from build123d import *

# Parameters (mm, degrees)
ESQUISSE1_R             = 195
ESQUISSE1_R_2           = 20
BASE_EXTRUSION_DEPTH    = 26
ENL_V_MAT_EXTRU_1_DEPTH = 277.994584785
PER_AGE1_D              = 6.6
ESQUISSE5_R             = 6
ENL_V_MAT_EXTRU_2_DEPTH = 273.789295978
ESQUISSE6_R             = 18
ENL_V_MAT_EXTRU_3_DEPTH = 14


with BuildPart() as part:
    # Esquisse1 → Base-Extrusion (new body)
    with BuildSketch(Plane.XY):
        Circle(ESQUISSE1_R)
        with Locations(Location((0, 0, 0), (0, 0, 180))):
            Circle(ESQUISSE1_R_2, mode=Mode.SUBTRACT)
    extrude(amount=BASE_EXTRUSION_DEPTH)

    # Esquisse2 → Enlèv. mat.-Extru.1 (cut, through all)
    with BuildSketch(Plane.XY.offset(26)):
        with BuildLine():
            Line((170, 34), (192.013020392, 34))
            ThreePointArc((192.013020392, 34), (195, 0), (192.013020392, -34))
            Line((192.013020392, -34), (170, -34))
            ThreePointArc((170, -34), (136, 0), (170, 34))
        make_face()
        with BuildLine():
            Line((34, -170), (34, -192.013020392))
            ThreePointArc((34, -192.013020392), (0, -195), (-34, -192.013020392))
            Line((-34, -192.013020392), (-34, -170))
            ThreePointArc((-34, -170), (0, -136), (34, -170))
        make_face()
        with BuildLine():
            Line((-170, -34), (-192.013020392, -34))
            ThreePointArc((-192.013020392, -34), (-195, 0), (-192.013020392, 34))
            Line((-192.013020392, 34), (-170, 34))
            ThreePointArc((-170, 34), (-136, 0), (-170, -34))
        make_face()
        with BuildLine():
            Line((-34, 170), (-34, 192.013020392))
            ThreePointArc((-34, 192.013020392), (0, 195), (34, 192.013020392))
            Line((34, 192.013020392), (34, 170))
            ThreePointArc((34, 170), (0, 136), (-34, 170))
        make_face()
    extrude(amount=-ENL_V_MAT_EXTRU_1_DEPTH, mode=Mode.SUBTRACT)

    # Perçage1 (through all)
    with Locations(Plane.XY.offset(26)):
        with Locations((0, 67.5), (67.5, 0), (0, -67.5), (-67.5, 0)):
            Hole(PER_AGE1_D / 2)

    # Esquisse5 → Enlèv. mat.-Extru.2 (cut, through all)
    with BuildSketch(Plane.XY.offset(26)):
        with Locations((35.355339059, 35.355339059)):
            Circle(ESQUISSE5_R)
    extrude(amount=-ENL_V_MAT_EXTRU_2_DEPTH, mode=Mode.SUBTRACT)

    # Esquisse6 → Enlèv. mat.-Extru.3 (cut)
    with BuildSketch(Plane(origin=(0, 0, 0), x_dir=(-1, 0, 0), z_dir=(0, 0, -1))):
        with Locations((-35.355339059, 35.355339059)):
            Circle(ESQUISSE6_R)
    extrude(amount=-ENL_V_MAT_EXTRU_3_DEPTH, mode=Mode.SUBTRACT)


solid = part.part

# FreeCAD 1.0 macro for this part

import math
import FreeCAD as App
import Part
import Sketcher

V = App.Vector
Q = App.Units.Quantity

doc = App.newDocument("Part")
body = doc.addObject("PartDesign::Body", "Body")

sketch1 = doc.addObject("Sketcher::SketchObject", "Sketch")
body.addObject(sketch1)
sketch1.AttachmentSupport = (doc.XY_Plane, [""])
sketch1.MapMode = "FlatFace"
sketch1.addGeometry([
    Part.Circle(V(0, 0, 0), V(0, 0, 1), 195),
    Part.Circle(V(0, 0, 0), V(0, 0, 1), 20),
], False)
sketch1.addConstraint([
    Sketcher.Constraint("Coincident", 0, 3, -1, 1),
    Sketcher.Constraint("Coincident", 1, 3, -1, 1),
    Sketcher.Constraint("Diameter", 0, Q("390 mm")),
    Sketcher.Constraint("Diameter", 1, Q("40 mm")),
])
pad1 = doc.addObject("PartDesign::Pad", "Pad")
body.addObject(pad1)
pad1.Profile = sketch1
pad1.Length = 26

sketch2 = doc.addObject("Sketcher::SketchObject", "Sketch001")
body.addObject(sketch2)
sketch2.AttachmentSupport = (doc.XY_Plane, [""])
sketch2.MapMode = "FlatFace"
sketch2.AttachmentOffset = App.Placement(V(0, 0, 26), App.Rotation())
sketch2.addGeometry([
    Part.LineSegment(V(192, 34, 0), V(170, 34, 0)),
    Part.ArcOfCircle(Part.Circle(V(170, 0, 0), V(0, 0, 1), 34), math.radians(90), math.radians(270)),
    Part.LineSegment(V(170, -34, 0), V(192, -34, 0)),
    Part.ArcOfCircle(Part.Circle(V(0, 0, 0), V(0, 0, 1), 195), math.radians(-10), math.radians(10)),
    Part.LineSegment(V(34, -192, 0), V(34, -170, 0)),
    Part.ArcOfCircle(Part.Circle(V(0, -170, 0), V(0, 0, 1), 34), math.radians(0), math.radians(180)),
    Part.LineSegment(V(-34, -170, 0), V(-34, -192, 0)),
    Part.ArcOfCircle(Part.Circle(V(0, 0, 0), V(0, 0, 1), 195), math.radians(-100), math.radians(-80)),
    Part.LineSegment(V(-192, -34, 0), V(-170, -34, 0)),
    Part.ArcOfCircle(Part.Circle(V(-170, 0, 0), V(0, 0, 1), 34), math.radians(-90), math.radians(90)),
    Part.LineSegment(V(-170, 34, 0), V(-192, 34, 0)),
    Part.ArcOfCircle(Part.Circle(V(0, 0, 0), V(0, 0, 1), 195), math.radians(170), math.radians(190)),
    Part.LineSegment(V(-34, 192, 0), V(-34, 170, 0)),
    Part.ArcOfCircle(Part.Circle(V(0, 170, 0), V(0, 0, 1), 34), math.radians(180), math.radians(360)),
    Part.LineSegment(V(34, 170, 0), V(34, 192, 0)),
    Part.ArcOfCircle(Part.Circle(V(0, 0, 0), V(0, 0, 1), 195), math.radians(80), math.radians(100)),
], False)
sketch2.addConstraint([
    Sketcher.Constraint("Tangent", 0, 2, 1, 1),
    Sketcher.Constraint("Tangent", 1, 2, 2, 1),
    Sketcher.Constraint("Coincident", 2, 2, 3, 1),
    Sketcher.Constraint("Coincident", 3, 2, 0, 1),
    Sketcher.Constraint("Tangent", 4, 2, 5, 1),
    Sketcher.Constraint("Tangent", 5, 2, 6, 1),
    Sketcher.Constraint("Coincident", 6, 2, 7, 1),
    Sketcher.Constraint("Coincident", 7, 2, 4, 1),
    Sketcher.Constraint("Tangent", 8, 2, 9, 1),
    Sketcher.Constraint("Tangent", 9, 2, 10, 1),
    Sketcher.Constraint("Coincident", 10, 2, 11, 1),
    Sketcher.Constraint("Coincident", 11, 2, 8, 1),
    Sketcher.Constraint("Tangent", 12, 2, 13, 1),
    Sketcher.Constraint("Tangent", 13, 2, 14, 1),
    Sketcher.Constraint("Coincident", 14, 2, 15, 1),
    Sketcher.Constraint("Coincident", 15, 2, 12, 1),
    Sketcher.Constraint("Horizontal", 0),
    Sketcher.Constraint("Horizontal", 2),
    Sketcher.Constraint("Vertical", 4),
    Sketcher.Constraint("Vertical", 6),
    Sketcher.Constraint("Horizontal", 8),
    Sketcher.Constraint("Horizontal", 10),
    Sketcher.Constraint("Vertical", 12),
    Sketcher.Constraint("Vertical", 14),
    Sketcher.Constraint("Coincident", 3, 3, -1, 1),
    Sketcher.Constraint("Coincident", 7, 3, -1, 1),
    Sketcher.Constraint("Coincident", 11, 3, -1, 1),
    Sketcher.Constraint("Coincident", 15, 3, -1, 1),
    Sketcher.Constraint("Equal", 1, 5),
    Sketcher.Constraint("Equal", 3, 7),
    Sketcher.Constraint("Equal", 5, 9),
    Sketcher.Constraint("Equal", 7, 11),
    Sketcher.Constraint("Equal", 9, 13),
    Sketcher.Constraint("Equal", 11, 15),
    Sketcher.Constraint("Symmetric", 1, 3, 9, 3, -1, 1),
    Sketcher.Constraint("Symmetric", 5, 3, 13, 3, -1, 1),
    Sketcher.Constraint("PointOnObject", 1, 3, -1),
    Sketcher.Constraint("PointOnObject", 5, 3, -2),
    Sketcher.Constraint("Equal", 10, 4),
    Sketcher.Constraint("Radius", 1, Q("34 mm")),
    Sketcher.Constraint("Radius", 3, Q("195 mm")),
    Sketcher.Constraint("DistanceX", -1, 1, 1, 3, Q("170 mm")),
])
pocket1 = doc.addObject("PartDesign::Pocket", "Pocket")
body.addObject(pocket1)
pocket1.Profile = sketch2
pocket1.Type = "ThroughAll"

sketch3 = doc.addObject("Sketcher::SketchObject", "Sketch002")
body.addObject(sketch3)
sketch3.AttachmentSupport = (doc.XY_Plane, [""])
sketch3.MapMode = "FlatFace"
sketch3.AttachmentOffset = App.Placement(V(0, 0, 26), App.Rotation())
sketch3.addGeometry([
    Part.Circle(V(0, 67.5, 0), V(0, 0, 1), 3.3),
    Part.Circle(V(67.5, 0, 0), V(0, 0, 1), 3.3),
    Part.Circle(V(0, -67.5, 0), V(0, 0, 1), 3.3),
    Part.Circle(V(-67.5, 0, 0), V(0, 0, 1), 3.3),
], False)
sketch3.addConstraint([
    Sketcher.Constraint("Equal", 0, 1),
    Sketcher.Constraint("Equal", 1, 2),
    Sketcher.Constraint("Equal", 2, 3),
    Sketcher.Constraint("Symmetric", 0, 3, 2, 3, -1, 1),
    Sketcher.Constraint("Symmetric", 1, 3, 3, 3, -1, 1),
    Sketcher.Constraint("PointOnObject", 0, 3, -2),
    Sketcher.Constraint("PointOnObject", 1, 3, -1),
    Sketcher.Constraint("Diameter", 0, Q("6.6 mm")),
    Sketcher.Constraint("DistanceY", 2, 3, 0, 3, Q("135 mm")),
    Sketcher.Constraint("DistanceX", 3, 3, 1, 3, Q("135 mm")),
])
doc.recompute()
hole = doc.addObject("PartDesign::Hole", "Hole")
body.addObject(hole)
hole.Profile = sketch3
hole.ThreadType = "None"
hole.Diameter = 6.6
hole.DepthType = "ThroughAll"

sketch4 = doc.addObject("Sketcher::SketchObject", "Sketch003")
body.addObject(sketch4)
sketch4.AttachmentSupport = (doc.XY_Plane, [""])
sketch4.MapMode = "FlatFace"
sketch4.AttachmentOffset = App.Placement(V(0, 0, 26), App.Rotation())
sketch4.addGeometry(Part.Circle(V(35, 35, 0), V(0, 0, 1), 6), False)
sketch4.addConstraint([
    Sketcher.Constraint("Diameter", 0, Q("12 mm")),
    Sketcher.Constraint("DistanceX", -1, 1, 0, 3, Q("35.355339 mm")),
    Sketcher.Constraint("DistanceY", -1, 1, 0, 3, Q("35.355339 mm")),
])
pocket2 = doc.addObject("PartDesign::Pocket", "Pocket001")
body.addObject(pocket2)
pocket2.Profile = sketch4
pocket2.Type = "ThroughAll"

sketch5 = doc.addObject("Sketcher::SketchObject", "Sketch004")
body.addObject(sketch5)
sketch5.AttachmentSupport = (doc.XY_Plane, [""])
sketch5.MapMode = "FlatFace"
sketch5.addGeometry(Part.Circle(V(35, 35, 0), V(0, 0, 1), 18), False)
sketch5.addConstraint([
    Sketcher.Constraint("Diameter", 0, Q("36 mm")),
    Sketcher.Constraint("DistanceX", -1, 1, 0, 3, Q("35.355339 mm")),
    Sketcher.Constraint("DistanceY", -1, 1, 0, 3, Q("35.355339 mm")),
])
pocket3 = doc.addObject("PartDesign::Pocket", "Pocket002")
body.addObject(pocket3)
pocket3.Profile = sketch5
pocket3.Length = 14
pocket3.Reversed = True

doc.recompute()
